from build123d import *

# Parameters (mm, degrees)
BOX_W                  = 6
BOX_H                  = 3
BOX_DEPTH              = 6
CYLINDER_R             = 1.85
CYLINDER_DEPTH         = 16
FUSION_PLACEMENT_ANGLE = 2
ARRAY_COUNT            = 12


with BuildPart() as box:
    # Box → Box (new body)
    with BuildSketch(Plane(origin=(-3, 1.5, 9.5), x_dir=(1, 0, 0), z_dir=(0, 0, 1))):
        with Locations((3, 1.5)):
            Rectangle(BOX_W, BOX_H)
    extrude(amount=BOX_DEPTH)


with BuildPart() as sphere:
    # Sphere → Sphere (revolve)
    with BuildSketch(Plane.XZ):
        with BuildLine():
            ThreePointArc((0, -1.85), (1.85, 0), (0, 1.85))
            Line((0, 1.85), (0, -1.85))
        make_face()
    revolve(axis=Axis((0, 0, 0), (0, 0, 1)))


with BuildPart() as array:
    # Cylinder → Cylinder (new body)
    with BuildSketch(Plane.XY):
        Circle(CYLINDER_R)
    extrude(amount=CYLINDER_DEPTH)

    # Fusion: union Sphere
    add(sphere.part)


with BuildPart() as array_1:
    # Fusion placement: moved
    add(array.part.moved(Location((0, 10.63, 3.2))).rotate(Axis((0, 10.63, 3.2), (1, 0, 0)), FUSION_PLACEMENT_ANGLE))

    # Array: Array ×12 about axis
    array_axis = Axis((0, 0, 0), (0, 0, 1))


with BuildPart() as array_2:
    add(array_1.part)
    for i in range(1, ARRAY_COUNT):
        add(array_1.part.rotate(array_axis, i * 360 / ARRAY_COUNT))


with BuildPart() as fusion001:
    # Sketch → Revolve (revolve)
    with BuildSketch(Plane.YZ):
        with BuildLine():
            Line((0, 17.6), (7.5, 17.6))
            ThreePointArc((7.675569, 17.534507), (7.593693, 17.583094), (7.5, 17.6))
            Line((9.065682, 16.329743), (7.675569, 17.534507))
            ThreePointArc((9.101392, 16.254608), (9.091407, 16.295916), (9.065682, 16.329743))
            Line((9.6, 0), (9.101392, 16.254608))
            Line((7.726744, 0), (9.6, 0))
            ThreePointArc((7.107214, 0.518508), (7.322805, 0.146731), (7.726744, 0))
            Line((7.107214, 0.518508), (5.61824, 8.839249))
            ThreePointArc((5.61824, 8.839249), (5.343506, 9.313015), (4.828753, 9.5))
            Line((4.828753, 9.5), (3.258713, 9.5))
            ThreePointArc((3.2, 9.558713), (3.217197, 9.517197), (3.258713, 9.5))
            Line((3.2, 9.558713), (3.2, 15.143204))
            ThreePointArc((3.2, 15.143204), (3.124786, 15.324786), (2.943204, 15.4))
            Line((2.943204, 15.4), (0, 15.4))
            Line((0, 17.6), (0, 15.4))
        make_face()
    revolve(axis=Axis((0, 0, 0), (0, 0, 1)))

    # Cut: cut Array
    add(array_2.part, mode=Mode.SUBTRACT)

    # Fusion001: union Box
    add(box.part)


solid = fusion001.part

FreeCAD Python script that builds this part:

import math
import FreeCAD as App
import Part
import Sketcher
from FreeCAD import Vector
Q = App.Units.Quantity


def add_polygon(sketch, points):
    """Adds a closed chain of lines whose ends are joined by coincident constraints."""
    first, n = sketch.GeometryCount, len(points)
    for a, b in zip(points, points[1:] + points[:1]):
        sketch.addGeometry(Part.LineSegment(App.Vector(*a, 0), App.Vector(*b, 0)), False)
    for i in range(n):
        sketch.addConstraint(Sketcher.Constraint("Coincident", first + i, 2, first + (i + 1) % n, 1))

doc = App.newDocument("Part")
body = doc.addObject("PartDesign::Body", "Body")

# Sketch on XY plane
sketch1 = body.newObject("Sketcher::SketchObject", "Sketch")
sketch1.AttachmentSupport = (doc.getObject("XY_Plane"), [""])
sketch1.MapMode = "FlatFace"
sketch1.AttachmentOffset = App.Placement(Vector(0, 0, 9.5), App.Rotation())
add_polygon(sketch1, [(-3, 4.5), (-3, 1.5), (3, 1.5), (3, 4.5)])  # lines 0-3
sketch1.addConstraint([
    Sketcher.Constraint("Vertical", 0),
    Sketcher.Constraint("Horizontal", 1),
    Sketcher.Constraint("Vertical", 2),
    Sketcher.Constraint("Horizontal", 3),
    Sketcher.Constraint("DistanceX", 1, 1, 1, 2, Q("6 mm")),
    Sketcher.Constraint("DistanceY", 0, 2, 0, 1, Q("3 mm")),
    Sketcher.Constraint("DistanceX", 0, 2, -1, 1, Q("3 mm")),
    Sketcher.Constraint("DistanceY", -1, 1, 0, 2, Q("1.5 mm")),
])
pad1 = body.newObject("PartDesign::Pad", "Pad")
pad1.Profile = sketch1
pad1.Length = 6
body2 = doc.addObject("PartDesign::Body", "Body001")

# Sketch on XZ plane
sketch2 = body2.newObject("Sketcher::SketchObject", "Sketch001")
sketch2.AttachmentSupport = (doc.getObject("XZ_Plane001"), [""])
sketch2.MapMode = "FlatFace"
sketch2.addGeometry([
    Part.ArcOfCircle(Part.Circle(Vector(0, 0, 0), Vector(0, 0, 1), 1.9), math.radians(-90), math.radians(90)),
    Part.LineSegment(Vector(0, 1.9, 0), Vector(0, -1.9, 0)),
], False)
sketch2.addConstraint([
    Sketcher.Constraint("Coincident", 0, 1, 1, 2),
    Sketcher.Constraint("Coincident", 1, 1, 0, 2),
    Sketcher.Constraint("Vertical", 1),
    Sketcher.Constraint("Coincident", 0, 3, -1, 1),
    Sketcher.Constraint("PointOnObject", 0, 1, -2),
    Sketcher.Constraint("Radius", 0, Q("1.85 mm")),
])
revolution = body2.newObject("PartDesign::Revolution", "Revolution")
revolution.Profile = sketch2
revolution.ReferenceAxis = (sketch2, ["V_Axis"])
revolution.Angle = 360
body3 = doc.addObject("PartDesign::Body", "Body002")

# Sketch on XY plane
sketch3 = body3.newObject("Sketcher::SketchObject", "Sketch002")
sketch3.AttachmentSupport = (doc.getObject("XY_Plane002"), [""])
sketch3.MapMode = "FlatFace"
sketch3.addGeometry(Part.Circle(Vector(0, 0, 0), Vector(0, 0, 1), 1.9), False)
sketch3.addConstraint([
    Sketcher.Constraint("Coincident", 0, 3, -1, 1),
    Sketcher.Constraint("Diameter", 0, Q("3.7 mm")),
])
pad2 = body3.newObject("PartDesign::Pad", "Pad001")
pad2.Profile = sketch3
pad2.Length = 16
doc.recompute()

boolean = body3.newObject("PartDesign::Boolean", "Boolean")
boolean.Type = "Fuse"
boolean.addObjects([body2])
body4 = doc.addObject("PartDesign::Body", "Body003")
doc.recompute()

body3.Placement = App.Placement(Vector(0, 10.63, 3.2), App.Rotation(Vector(1, 0, 0), 2))
boolean2 = body4.newObject("PartDesign::Boolean", "Boolean001")
boolean2.Type = "Fuse"
boolean2.addObjects([body3])
body5 = doc.addObject("PartDesign::Body", "Body004")
body5.AllowCompound = True
doc.recompute()

body5.BaseFeature = body4
doc.recompute()

body6 = doc.addObject("PartDesign::Body", "Body005")
body6.BaseFeature = body4
body6.Placement = App.Placement(Vector(0, 0, 0), App.Rotation(Vector(0, 0, 1), 30))
boolean3 = body5.newObject("PartDesign::Boolean", "Boolean002")
boolean3.Type = "Fuse"
boolean3.addObjects([body6])
doc.recompute()

body7 = doc.addObject("PartDesign::Body", "Body006")
body7.BaseFeature = body4
body7.Placement = App.Placement(Vector(0, 0, 0), App.Rotation(Vector(0, 0, 1), 60))
boolean4 = body5.newObject("PartDesign::Boolean", "Boolean003")
boolean4.Type = "Fuse"
boolean4.addObjects([body7])
doc.recompute()

body8 = doc.addObject("PartDesign::Body", "Body007")
body8.BaseFeature = body4
body8.Placement = App.Placement(Vector(0, 0, 0), App.Rotation(Vector(0, 0, 1), 90))
boolean5 = body5.newObject("PartDesign::Boolean", "Boolean004")
boolean5.Type = "Fuse"
boolean5.addObjects([body8])
doc.recompute()

body9 = doc.addObject("PartDesign::Body", "Body008")
body9.BaseFeature = body4
body9.Placement = App.Placement(Vector(0, 0, 0), App.Rotation(Vector(0, 0, 1), 120))
boolean6 = body5.newObject("PartDesign::Boolean", "Boolean005")
boolean6.Type = "Fuse"
boolean6.addObjects([body9])
doc.recompute()

body10 = doc.addObject("PartDesign::Body", "Body009")
body10.BaseFeature = body4
body10.Placement = App.Placement(Vector(0, 0, 0), App.Rotation(Vector(0, 0, 1), 150))
boolean7 = body5.newObject("PartDesign::Boolean", "Boolean006")
boolean7.Type = "Fuse"
boolean7.addObjects([body10])
doc.recompute()

body11 = doc.addObject("PartDesign::Body", "Body010")
body11.BaseFeature = body4
body11.Placement = App.Placement(Vector(0, 0, 0), App.Rotation(Vector(0, 0, 1), 180))
boolean8 = body5.newObject("PartDesign::Boolean", "Boolean007")
boolean8.Type = "Fuse"
boolean8.addObjects([body11])
doc.recompute()

body12 = doc.addObject("PartDesign::Body", "Body011")
body12.BaseFeature = body4
body12.Placement = App.Placement(Vector(0, 0, 0), App.Rotation(Vector(0, 0, 1), 210))
boolean9 = body5.newObject("PartDesign::Boolean", "Boolean008")
boolean9.Type = "Fuse"
boolean9.addObjects([body12])
doc.recompute()

body13 = doc.addObject("PartDesign::Body", "Body012")
body13.BaseFeature = body4
body13.Placement = App.Placement(Vector(0, 0, 0), App.Rotation(Vector(0, 0, 1), 240))
boolean10 = body5.newObject("PartDesign::Boolean", "Boolean009")
boolean10.Type = "Fuse"
boolean10.addObjects([body13])
doc.recompute()

body14 = doc.addObject("PartDesign::Body", "Body013")
body14.BaseFeature = body4
body14.Placement = App.Placement(Vector(0, 0, 0), App.Rotation(Vector(0, 0, 1), 270))
boolean11 = body5.newObject("PartDesign::Boolean", "Boolean010")
boolean11.Type = "Fuse"
boolean11.addObjects([body14])
doc.recompute()

body15 = doc.addObject("PartDesign::Body", "Body014")
body15.BaseFeature = body4
body15.Placement = App.Placement(Vector(0, 0, 0), App.Rotation(Vector(0, 0, 1), 300))
boolean12 = body5.newObject("PartDesign::Boolean", "Boolean011")
boolean12.Type = "Fuse"
boolean12.addObjects([body15])
doc.recompute()

body4.Placement = App.Placement(Vector(0, 0, 0), App.Rotation(Vector(0, 0, 1), 330))
boolean13 = body5.newObject("PartDesign::Boolean", "Boolean012")
boolean13.Type = "Fuse"
boolean13.addObjects([body4])
body16 = doc.addObject("PartDesign::Body", "Body015")

# Sketch on YZ plane
sketch4 = body16.newObject("Sketcher::SketchObject", "Sketch003")
sketch4.AttachmentSupport = (doc.getObject("YZ_Plane015"), [""])
sketch4.MapMode = "FlatFace"
sketch4.addGeometry([
    Part.LineSegment(Vector(7.5, 17.6, 0), Vector(0, 17.6, 0)),  # 0
    Part.LineSegment(Vector(0, 17.6, 0), Vector(0, 15.4, 0)),  # 1
    Part.LineSegment(Vector(0, 15.4, 0), Vector(2.94, 15.4, 0)),  # 2
    Part.ArcOfCircle(Part.Circle(Vector(2.94, 15.14, 0), Vector(0, 0, 1), 0.26), math.radians(0), math.radians(90)),  # 3
    Part.LineSegment(Vector(3.2, 15.14, 0), Vector(3.2, 9.56, 0)),  # 4
    Part.ArcOfCircle(Part.Circle(Vector(3.26, 9.56, 0), Vector(0, 0, 1), 0.06), math.radians(-180), math.radians(-90)),  # 5
    Part.LineSegment(Vector(3.26, 9.5, 0), Vector(4.83, 9.5, 0)),  # 6
    Part.ArcOfCircle(Part.Circle(Vector(4.83, 8.7, 0), Vector(0, 0, 1), 0.8), math.radians(10), math.radians(90)),  # 7
    Part.LineSegment(Vector(5.62, 8.84, 0), Vector(7.11, 0.52, 0)),  # 8
    Part.ArcOfCircle(Part.Circle(Vector(7.73, 0.63, 0), Vector(0, 0, 1), 0.63), math.radians(-170), math.radians(-90)),  # 9
    Part.LineSegment(Vector(7.73, 0, 0), Vector(9.6, 0, 0)),  # 10
    Part.LineSegment(Vector(9.6, 0, 0), Vector(9.1, 16.25, 0)),  # 11
    Part.ArcOfCircle(Part.Circle(Vector(9, 16.25, 0), Vector(0, 0, 1), 0.1), math.radians(2), math.radians(49)),  # 12
    Part.LineSegment(Vector(9.07, 16.33, 0), Vector(7.68, 17.53, 0)),  # 13
    Part.ArcOfCircle(Part.Circle(Vector(7.5, 17.33, 0), Vector(0, 0, 1), 0.27), math.radians(49), math.radians(90)),  # 14
], False)
sketch4.addConstraint([
    Sketcher.Constraint("Coincident", 0, 2, 1, 1),
    Sketcher.Constraint("Coincident", 1, 2, 2, 1),
    Sketcher.Constraint("Coincident", 2, 2, 3, 2),
    Sketcher.Constraint("Coincident", 3, 1, 4, 1),
    Sketcher.Constraint("Coincident", 4, 2, 5, 1),
    Sketcher.Constraint("Coincident", 5, 2, 6, 1),
    Sketcher.Constraint("Tangent", 6, 2, 7, 2),
    Sketcher.Constraint("Tangent", 7, 1, 8, 1),
    Sketcher.Constraint("Tangent", 8, 2, 9, 1),
    Sketcher.Constraint("Tangent", 9, 2, 10, 1),
    Sketcher.Constraint("Coincident", 10, 2, 11, 1),
    Sketcher.Constraint("Tangent", 11, 2, 12, 1),
    Sketcher.Constraint("Coincident", 12, 2, 13, 1),
    Sketcher.Constraint("Coincident", 13, 2, 14, 1),
    Sketcher.Constraint("Coincident", 14, 2, 0, 1),
    Sketcher.Constraint("Horizontal", 0),
    Sketcher.Constraint("Vertical", 1),
    Sketcher.Constraint("Horizontal", 2),
    Sketcher.Constraint("Vertical", 4),
    Sketcher.Constraint("Horizontal", 6),
    Sketcher.Constraint("Horizontal", 10),
    Sketcher.Constraint("PointOnObject", 0, 2, -2),
    Sketcher.Constraint("PointOnObject", 9, 2, -1),
    Sketcher.Constraint("Horizontal", 5, 3, 4, 2),
    Sketcher.Constraint("Vertical", 3, 3, 2, 2),
    Sketcher.Constraint("DistanceX", 0, 2, 0, 1, Q("7.5 mm")),
    Sketcher.Constraint("DistanceY", 1, 2, 1, 1, Q("2.2 mm")),
    Sketcher.Constraint("DistanceX", -1, 1, 14, 3, Q("7.500001 mm")),
    Sketcher.Constraint("DistanceY", -1, 1, 0, 2, Q("17.6 mm")),
    Sketcher.Constraint("DistanceX", -1, 1, 3, 1, Q("3.2 mm")),
    Sketcher.Constraint("DistanceY", -1, 1, 5, 2, Q("9.5 mm")),
    Sketcher.Constraint("DistanceX", -1, 1, 10, 2, Q("9.6 mm")),
    Sketcher.Constraint("Radius", 7, Q("0.802029 mm")),
    Sketcher.Constraint("Radius", 9, Q("0.629371 mm")),
    Sketcher.Constraint("Radius", 14, Q("0.26807 mm")),
    Sketcher.Constraint("Radius", 3, Q("0.256797 mm")),
    Sketcher.Constraint("Radius", 5, Q("0.058714 mm")),
    Sketcher.Constraint("Radius", 12, Q("0.103633 mm")),
    Sketcher.Constraint("DistanceX", 6, 1, 6, 2, Q("1.57004 mm")),
    Sketcher.Constraint("DistanceY", 4, 2, 4, 1, Q("5.584491 mm")),
    Sketcher.Constraint("DistanceY", 12, 3, 14, 3, Q("1.0805 mm")),
    Sketcher.Constraint("DistanceX", 5, 2, 8, 2, Q("3.848501 mm")),
    Sketcher.Constraint("DistanceY", 11, 2, 13, 2, Q("1.279899 mm")),
    Sketcher.Constraint("Distance", 13, Q("1.83953 mm")),
    Sketcher.Constraint("DistanceX", 10, 1, 10, 2, Q("1.873256 mm")),
    Sketcher.Constraint("DistanceX", 14, 3, 11, 2, Q("1.601391 mm")),
])
revolution2 = body16.newObject("PartDesign::Revolution", "Revolution001")
revolution2.Profile = sketch4
revolution2.ReferenceAxis = (sketch4, ["V_Axis"])
revolution2.Angle = 360
doc.recompute()

boolean14 = body16.newObject("PartDesign::Boolean", "Boolean013")
boolean14.Type = "Cut"
boolean14.addObjects([body5])
doc.recompute()

boolean15 = body16.newObject("PartDesign::Boolean", "Boolean014")
boolean15.Type = "Fuse"
boolean15.addObjects([body])

doc.recompute()
